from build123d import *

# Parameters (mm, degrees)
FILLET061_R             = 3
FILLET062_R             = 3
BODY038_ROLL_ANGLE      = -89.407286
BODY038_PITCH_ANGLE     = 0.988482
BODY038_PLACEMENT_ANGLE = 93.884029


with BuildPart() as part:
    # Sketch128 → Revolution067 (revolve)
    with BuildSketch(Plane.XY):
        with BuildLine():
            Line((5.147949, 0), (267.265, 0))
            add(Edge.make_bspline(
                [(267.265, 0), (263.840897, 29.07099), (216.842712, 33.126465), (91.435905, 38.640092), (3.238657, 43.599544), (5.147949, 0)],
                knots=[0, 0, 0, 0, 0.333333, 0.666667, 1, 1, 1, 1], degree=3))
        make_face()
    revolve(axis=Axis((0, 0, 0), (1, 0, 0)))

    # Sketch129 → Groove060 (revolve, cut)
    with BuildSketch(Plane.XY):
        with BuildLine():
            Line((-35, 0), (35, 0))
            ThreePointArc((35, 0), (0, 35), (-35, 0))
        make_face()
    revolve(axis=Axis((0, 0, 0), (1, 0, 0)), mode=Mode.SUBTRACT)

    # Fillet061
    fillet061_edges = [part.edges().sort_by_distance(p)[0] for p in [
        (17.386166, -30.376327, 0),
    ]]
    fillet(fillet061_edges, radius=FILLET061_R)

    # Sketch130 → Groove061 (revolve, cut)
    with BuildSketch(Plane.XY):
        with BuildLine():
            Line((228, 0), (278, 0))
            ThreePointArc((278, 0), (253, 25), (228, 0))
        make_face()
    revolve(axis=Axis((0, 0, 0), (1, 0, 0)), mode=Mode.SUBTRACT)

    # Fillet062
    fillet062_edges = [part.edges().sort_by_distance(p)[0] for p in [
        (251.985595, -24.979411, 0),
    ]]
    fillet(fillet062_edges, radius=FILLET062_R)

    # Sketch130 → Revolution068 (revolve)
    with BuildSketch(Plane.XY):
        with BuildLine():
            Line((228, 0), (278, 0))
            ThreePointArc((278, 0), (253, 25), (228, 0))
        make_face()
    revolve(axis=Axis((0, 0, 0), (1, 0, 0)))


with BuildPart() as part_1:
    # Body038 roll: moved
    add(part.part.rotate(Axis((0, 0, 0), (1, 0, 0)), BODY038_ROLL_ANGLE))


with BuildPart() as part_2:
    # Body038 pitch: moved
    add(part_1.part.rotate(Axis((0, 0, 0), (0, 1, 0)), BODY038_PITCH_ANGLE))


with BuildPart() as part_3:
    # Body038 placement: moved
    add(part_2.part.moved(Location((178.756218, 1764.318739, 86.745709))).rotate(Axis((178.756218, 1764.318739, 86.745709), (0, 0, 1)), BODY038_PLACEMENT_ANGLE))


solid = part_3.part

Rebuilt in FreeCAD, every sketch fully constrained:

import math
import FreeCAD as App
import Part
import Sketcher

V = App.Vector
Q = App.Units.Quantity


def edges_at(feature, points):
    """Names of the edges that pass closest to the given points."""
    edges = feature.Shape.Edges
    near = lambda p: min(range(len(edges)), key=lambda i: edges[i].distToShape(Part.Vertex(*p))[0])
    return sorted({f"Edge{near(p) + 1}" for p in points})

doc = App.newDocument("Part")
body = doc.addObject("PartDesign::Body", "Body")

# Sketch on XY plane
sketch1 = body.newObject("Sketcher::SketchObject", "Sketch")
sketch1.AttachmentSupport = (doc.getObject("XY_Plane"), [""])
sketch1.MapMode = "FlatFace"
sketch1.addGeometry([
    Part.LineSegment(V(5.147949, 0, 0), V(267.265, 0, 0)),
    Part.BSplineCurve([V(267.265, 0, 0), V(263.840897, 29.07099, 0), V(216.842712, 33.126465, 0), V(91.435905, 38.640092, 0), V(3.238657, 43.599544, 0), V(5.147949, 0, 0)], [4, 1, 1, 4], [0, 0.333333, 0.666667, 1], False, 3, [1, 1, 1, 1, 1, 1], False),
], False)
sketch1.addConstraint([
    Sketcher.Constraint("Block", 1),
    Sketcher.Constraint("Coincident", 0, 1, 1, 2),
    Sketcher.Constraint("Coincident", 1, 1, 0, 2),
])
revolution = body.newObject("PartDesign::Revolution", "Revolution")
revolution.Profile = sketch1
revolution.ReferenceAxis = (sketch1, ["H_Axis"])
revolution.Angle = 360

# Sketch on XY plane
sketch2 = body.newObject("Sketcher::SketchObject", "Sketch001")
sketch2.AttachmentSupport = (doc.getObject("XY_Plane"), [""])
sketch2.MapMode = "FlatFace"
sketch2.addGeometry([
    Part.LineSegment(V(-35, 0, 0), V(35, 0, 0)),
    Part.ArcOfCircle(Part.Circle(V(0, 0, 0), V(0, 0, 1), 35), math.radians(0), math.radians(180)),
], False)
sketch2.addConstraint([
    Sketcher.Constraint("Coincident", 0, 1, 1, 2),
    Sketcher.Constraint("Coincident", 1, 1, 0, 2),
    Sketcher.Constraint("Horizontal", 0),
    Sketcher.Constraint("Coincident", 1, 3, -1, 1),
    Sketcher.Constraint("PointOnObject", 0, 1, -1),
    Sketcher.Constraint("Radius", 1, Q("35 mm")),
])
groove = body.newObject("PartDesign::Groove", "Groove")
groove.Profile = sketch2
groove.ReferenceAxis = (sketch2, ["H_Axis"])
groove.Angle = 360
doc.recompute()

fillet = body.newObject("PartDesign::Fillet", "Fillet")
fillet.Base = (groove, edges_at(groove, [(17.386, -30.376, 0)]))
fillet.Radius = 3

# Sketch on XY plane
sketch3 = body.newObject("Sketcher::SketchObject", "Sketch002")
sketch3.AttachmentSupport = (doc.getObject("XY_Plane"), [""])
sketch3.MapMode = "FlatFace"
sketch3.addGeometry([
    Part.LineSegment(V(228, 0, 0), V(278, 0, 0)),
    Part.ArcOfCircle(Part.Circle(V(253, 0, 0), V(0, 0, 1), 25), math.radians(0), math.radians(180)),
], False)
sketch3.addConstraint([
    Sketcher.Constraint("Coincident", 0, 1, 1, 2),
    Sketcher.Constraint("Coincident", 1, 1, 0, 2),
    Sketcher.Constraint("Horizontal", 0),
    Sketcher.Constraint("PointOnObject", 1, 3, -1),
    Sketcher.Constraint("PointOnObject", 0, 1, -1),
    Sketcher.Constraint("Radius", 1, Q("25 mm")),
    Sketcher.Constraint("DistanceX", -1, 1, 1, 3, Q("253 mm")),
])
groove2 = body.newObject("PartDesign::Groove", "Groove001")
groove2.Profile = sketch3
groove2.ReferenceAxis = (sketch3, ["H_Axis"])
groove2.Angle = 360
doc.recompute()

fillet2 = body.newObject("PartDesign::Fillet", "Fillet001")
fillet2.Base = (groove2, edges_at(groove2, [(251.986, -24.979, 0)]))
fillet2.Radius = 3

# Sketch on XY plane
sketch4 = body.newObject("Sketcher::SketchObject", "Sketch003")
sketch4.AttachmentSupport = (doc.getObject("XY_Plane"), [""])
sketch4.MapMode = "FlatFace"
sketch4.addGeometry([
    Part.LineSegment(V(228, 0, 0), V(278, 0, 0)),
    Part.ArcOfCircle(Part.Circle(V(253, 0, 0), V(0, 0, 1), 25), math.radians(0), math.radians(180)),
], False)
sketch4.addConstraint([
    Sketcher.Constraint("Coincident", 0, 1, 1, 2),
    Sketcher.Constraint("Coincident", 1, 1, 0, 2),
    Sketcher.Constraint("Horizontal", 0),
    Sketcher.Constraint("PointOnObject", 1, 3, -1),
    Sketcher.Constraint("PointOnObject", 0, 1, -1),
    Sketcher.Constraint("Radius", 1, Q("25 mm")),
    Sketcher.Constraint("DistanceX", -1, 1, 1, 3, Q("253 mm")),
])
revolution2 = body.newObject("PartDesign::Revolution", "Revolution001")
revolution2.Profile = sketch4
revolution2.ReferenceAxis = (sketch4, ["H_Axis"])
revolution2.Angle = 360
body2 = doc.addObject("PartDesign::Body", "Body001")
doc.recompute()

body.Placement = App.Placement(V(0, 0, 0), App.Rotation(V(1, 0, 0), 270.592714))
boolean = body2.newObject("PartDesign::Boolean", "Boolean")
boolean.Type = "Fuse"
boolean.addObjects([body])
body3 = doc.addObject("PartDesign::Body", "Body002")
doc.recompute()

body2.Placement = App.Placement(V(0, 0, 0), App.Rotation(V(0, 1, 0), 0.988482))
boolean2 = body3.newObject("PartDesign::Boolean", "Boolean001")
boolean2.Type = "Fuse"
boolean2.addObjects([body2])
body4 = doc.addObject("PartDesign::Body", "Body003")
doc.recompute()

body3.Placement = App.Placement(V(178.756218, 1764.318739, 86.745709), App.Rotation(V(0, 0, 1), 93.884029))
boolean3 = body4.newObject("PartDesign::Boolean", "Boolean002")
boolean3.Type = "Fuse"
boolean3.addObjects([body3])

doc.recompute()
